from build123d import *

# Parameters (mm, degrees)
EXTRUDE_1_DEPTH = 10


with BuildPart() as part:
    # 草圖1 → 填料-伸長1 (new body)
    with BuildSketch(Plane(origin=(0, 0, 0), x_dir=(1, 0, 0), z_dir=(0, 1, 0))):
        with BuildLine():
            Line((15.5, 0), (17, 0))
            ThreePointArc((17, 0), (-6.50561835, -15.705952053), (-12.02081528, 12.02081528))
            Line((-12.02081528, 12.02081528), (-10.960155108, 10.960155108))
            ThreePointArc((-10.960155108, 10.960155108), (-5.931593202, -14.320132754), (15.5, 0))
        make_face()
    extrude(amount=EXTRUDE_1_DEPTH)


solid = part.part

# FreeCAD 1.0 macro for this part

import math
import FreeCAD as App
import Part
import Sketcher
Q = App.Units.Quantity

doc = App.newDocument("Part")
body = doc.addObject("PartDesign::Body", "Body")

# Sketch on XZ plane
sketch1 = body.newObject("Sketcher::SketchObject", "Sketch")
sketch1.AttachmentSupport = (doc.getObject("XZ_Plane"), [""])
sketch1.MapMode = "FlatFace"
sketch1.addGeometry(Part.LineSegment(App.Vector(17, 0, 0), App.Vector(15.5, 0, 0)), False)
sketch1.addGeometry(Part.ArcOfCircle(Part.Circle(App.Vector(0, 0, 0), App.Vector(0, 0, 1), 15.5), math.radians(0), math.radians(225)), False)
sketch1.addGeometry(Part.LineSegment(App.Vector(-11, -11, 0), App.Vector(-12, -12, 0)), False)
sketch1.addGeometry(Part.ArcOfCircle(Part.Circle(App.Vector(0, 0, 0), App.Vector(0, 0, 1), 17), math.radians(0), math.radians(225)), False)
sketch1.addConstraint(Sketcher.Constraint("Coincident", 0, 2, 1, 1))
sketch1.addConstraint(Sketcher.Constraint("Coincident", 1, 2, 2, 1))
sketch1.addConstraint(Sketcher.Constraint("Coincident", 2, 2, 3, 2))
sketch1.addConstraint(Sketcher.Constraint("Coincident", 3, 1, 0, 1))
sketch1.addConstraint(Sketcher.Constraint("Horizontal", 0))
sketch1.addConstraint(Sketcher.Constraint("Coincident", 1, 3, -1, 1))
sketch1.addConstraint(Sketcher.Constraint("Coincident", 3, 3, -1, 1))
sketch1.addConstraint(Sketcher.Constraint("PointOnObject", 0, 2, -1))
sketch1.addConstraint(Sketcher.Constraint("Radius", 3, Q("17 mm")))
sketch1.addConstraint(Sketcher.Constraint("Radius", 1, Q("15.5 mm")))
sketch1.addConstraint(Sketcher.Constraint("Angle", 2, Q("-135 deg")))
sketch1.addConstraint(Sketcher.Constraint("DistanceX", 1, 2, -1, 1, Q("10.960155 mm")))
pad1 = body.newObject("PartDesign::Pad", "Pad")
pad1.Profile = sketch1
pad1.Length = 10
pad1.Reversed = True

doc.recompute()
